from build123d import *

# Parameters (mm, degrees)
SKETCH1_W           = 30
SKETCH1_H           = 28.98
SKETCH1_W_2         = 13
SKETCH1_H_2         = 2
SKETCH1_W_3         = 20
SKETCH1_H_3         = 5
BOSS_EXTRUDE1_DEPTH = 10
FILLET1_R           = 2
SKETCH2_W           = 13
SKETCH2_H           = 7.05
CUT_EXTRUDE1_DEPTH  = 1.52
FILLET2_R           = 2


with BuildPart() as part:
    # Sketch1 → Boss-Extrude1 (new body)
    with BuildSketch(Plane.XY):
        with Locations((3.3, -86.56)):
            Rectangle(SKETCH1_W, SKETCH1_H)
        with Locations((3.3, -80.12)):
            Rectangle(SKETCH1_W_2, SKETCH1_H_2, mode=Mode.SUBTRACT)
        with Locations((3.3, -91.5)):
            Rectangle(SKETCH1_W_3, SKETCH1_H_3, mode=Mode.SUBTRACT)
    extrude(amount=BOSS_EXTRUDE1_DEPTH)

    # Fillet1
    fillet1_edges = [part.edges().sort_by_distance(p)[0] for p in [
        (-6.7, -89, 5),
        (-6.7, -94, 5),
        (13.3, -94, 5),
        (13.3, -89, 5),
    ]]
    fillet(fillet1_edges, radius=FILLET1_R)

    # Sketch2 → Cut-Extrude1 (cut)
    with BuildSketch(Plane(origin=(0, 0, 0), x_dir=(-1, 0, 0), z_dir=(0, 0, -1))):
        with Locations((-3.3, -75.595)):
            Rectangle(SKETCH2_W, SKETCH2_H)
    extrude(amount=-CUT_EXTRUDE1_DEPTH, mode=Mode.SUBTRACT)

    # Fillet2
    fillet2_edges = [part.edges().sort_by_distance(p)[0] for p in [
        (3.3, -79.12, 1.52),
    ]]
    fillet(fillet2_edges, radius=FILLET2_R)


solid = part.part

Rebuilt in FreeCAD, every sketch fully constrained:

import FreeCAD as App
import Part
import Sketcher

V = App.Vector
Q = App.Units.Quantity


def edges_at(feature, points):
    """Names of the edges that pass closest to the given points."""
    edges = feature.Shape.Edges
    near = lambda p: min(range(len(edges)), key=lambda i: edges[i].distToShape(Part.Vertex(*p))[0])
    return sorted({f"Edge{near(p) + 1}" for p in points})


def add_polygon(sketch, points):
    """Adds a closed chain of lines whose ends are joined by coincident constraints."""
    first, n = sketch.GeometryCount, len(points)
    for a, b in zip(points, points[1:] + points[:1]):
        sketch.addGeometry(Part.LineSegment(App.Vector(*a, 0), App.Vector(*b, 0)), False)
    for i in range(n):
        sketch.addConstraint(Sketcher.Constraint("Coincident", first + i, 2, first + (i + 1) % n, 1))

doc = App.newDocument("Part")
body = doc.addObject("PartDesign::Body", "Body")

sketch1 = body.newObject("Sketcher::SketchObject", "Sketch")
sketch1.AttachmentSupport = (doc.getObject("XY_Plane"), [""])
sketch1.MapMode = "FlatFace"
add_polygon(sketch1, [(-11.7, -72.07), (-11.7, -101.05), (18.3, -101.05), (18.3, -72.07)])
add_polygon(sketch1, [(13.3, -94), (-6.7, -94), (-6.7, -89), (13.3, -89)])
add_polygon(sketch1, [(9.8, -81.12), (-3.2, -81.12), (-3.2, -79.12), (9.8, -79.12)])
sketch1.addConstraint(Sketcher.Constraint("Vertical", 0))
sketch1.addConstraint(Sketcher.Constraint("Horizontal", 1))
sketch1.addConstraint(Sketcher.Constraint("Vertical", 2))
sketch1.addConstraint(Sketcher.Constraint("Horizontal", 3))
sketch1.addConstraint(Sketcher.Constraint("Horizontal", 4))
sketch1.addConstraint(Sketcher.Constraint("Vertical", 5))
sketch1.addConstraint(Sketcher.Constraint("Horizontal", 6))
sketch1.addConstraint(Sketcher.Constraint("Vertical", 7))
sketch1.addConstraint(Sketcher.Constraint("Horizontal", 8))
sketch1.addConstraint(Sketcher.Constraint("Vertical", 9))
sketch1.addConstraint(Sketcher.Constraint("Horizontal", 10))
sketch1.addConstraint(Sketcher.Constraint("Vertical", 11))
sketch1.addConstraint(Sketcher.Constraint("DistanceX", 1, 1, 1, 2, Q("30 mm")))
sketch1.addConstraint(Sketcher.Constraint("DistanceX", 4, 2, 4, 1, Q("20 mm")))
sketch1.addConstraint(Sketcher.Constraint("DistanceX", 8, 2, 8, 1, Q("13 mm")))
sketch1.addConstraint(Sketcher.Constraint("DistanceY", 5, 1, 5, 2, Q("5 mm")))
sketch1.addConstraint(Sketcher.Constraint("DistanceY", 9, 1, 9, 2, Q("2 mm")))
sketch1.addConstraint(Sketcher.Constraint("DistanceY", 4, 2, -1, 1, Q("94 mm")))
sketch1.addConstraint(Sketcher.Constraint("DistanceX", 0, 2, 4, 2, Q("5 mm")))
sketch1.addConstraint(Sketcher.Constraint("DistanceY", 0, 2, 0, 1, Q("28.98 mm")))
sketch1.addConstraint(Sketcher.Constraint("DistanceX", 0, 2, -1, 1, Q("11.7 mm")))
sketch1.addConstraint(Sketcher.Constraint("DistanceX", 8, 2, -1, 1, Q("3.2 mm")))
sketch1.addConstraint(Sketcher.Constraint("DistanceY", 0, 2, -1, 1, Q("101.05 mm")))
sketch1.addConstraint(Sketcher.Constraint("DistanceY", 8, 2, -1, 1, Q("81.12 mm")))
pad1 = body.newObject("PartDesign::Pad", "Pad")
pad1.Profile = sketch1
pad1.Length = 10
doc.recompute()

fillet = body.newObject("PartDesign::Fillet", "Fillet")
fillet.Base = (pad1, edges_at(pad1, [
    (-6.7, -89, 5),
    (-6.7, -94, 5),
    (13.3, -94, 5),
    (13.3, -89, 5),
]))
fillet.Radius = 2

sketch2 = body.newObject("Sketcher::SketchObject", "Sketch001")
sketch2.AttachmentSupport = (doc.getObject("XY_Plane"), [""])
sketch2.MapMode = "FlatFace"
add_polygon(sketch2, [(9.8, -72.07), (9.8, -79.12), (-3.2, -79.12), (-3.2, -72.07)])
sketch2.addConstraint(Sketcher.Constraint("Vertical", 0))
sketch2.addConstraint(Sketcher.Constraint("Horizontal", 1))
sketch2.addConstraint(Sketcher.Constraint("Vertical", 2))
sketch2.addConstraint(Sketcher.Constraint("Horizontal", 3))
sketch2.addConstraint(Sketcher.Constraint("DistanceX", 1, 2, 1, 1, Q("13 mm")))
sketch2.addConstraint(Sketcher.Constraint("DistanceY", 0, 2, 0, 1, Q("7.05 mm")))
sketch2.addConstraint(Sketcher.Constraint("DistanceX", -1, 1, 0, 2, Q("9.8 mm")))
sketch2.addConstraint(Sketcher.Constraint("DistanceY", 0, 2, -1, 1, Q("79.12 mm")))
pocket1 = body.newObject("PartDesign::Pocket", "Pocket")
pocket1.Profile = sketch2
pocket1.Length = 1.52
pocket1.Reversed = True
doc.recompute()

fillet2 = body.newObject("PartDesign::Fillet", "Fillet001")
fillet2.Base = (pocket1, edges_at(pocket1, [(3.3, -79.12, 1.52)]))
fillet2.Radius = 2

doc.recompute()
